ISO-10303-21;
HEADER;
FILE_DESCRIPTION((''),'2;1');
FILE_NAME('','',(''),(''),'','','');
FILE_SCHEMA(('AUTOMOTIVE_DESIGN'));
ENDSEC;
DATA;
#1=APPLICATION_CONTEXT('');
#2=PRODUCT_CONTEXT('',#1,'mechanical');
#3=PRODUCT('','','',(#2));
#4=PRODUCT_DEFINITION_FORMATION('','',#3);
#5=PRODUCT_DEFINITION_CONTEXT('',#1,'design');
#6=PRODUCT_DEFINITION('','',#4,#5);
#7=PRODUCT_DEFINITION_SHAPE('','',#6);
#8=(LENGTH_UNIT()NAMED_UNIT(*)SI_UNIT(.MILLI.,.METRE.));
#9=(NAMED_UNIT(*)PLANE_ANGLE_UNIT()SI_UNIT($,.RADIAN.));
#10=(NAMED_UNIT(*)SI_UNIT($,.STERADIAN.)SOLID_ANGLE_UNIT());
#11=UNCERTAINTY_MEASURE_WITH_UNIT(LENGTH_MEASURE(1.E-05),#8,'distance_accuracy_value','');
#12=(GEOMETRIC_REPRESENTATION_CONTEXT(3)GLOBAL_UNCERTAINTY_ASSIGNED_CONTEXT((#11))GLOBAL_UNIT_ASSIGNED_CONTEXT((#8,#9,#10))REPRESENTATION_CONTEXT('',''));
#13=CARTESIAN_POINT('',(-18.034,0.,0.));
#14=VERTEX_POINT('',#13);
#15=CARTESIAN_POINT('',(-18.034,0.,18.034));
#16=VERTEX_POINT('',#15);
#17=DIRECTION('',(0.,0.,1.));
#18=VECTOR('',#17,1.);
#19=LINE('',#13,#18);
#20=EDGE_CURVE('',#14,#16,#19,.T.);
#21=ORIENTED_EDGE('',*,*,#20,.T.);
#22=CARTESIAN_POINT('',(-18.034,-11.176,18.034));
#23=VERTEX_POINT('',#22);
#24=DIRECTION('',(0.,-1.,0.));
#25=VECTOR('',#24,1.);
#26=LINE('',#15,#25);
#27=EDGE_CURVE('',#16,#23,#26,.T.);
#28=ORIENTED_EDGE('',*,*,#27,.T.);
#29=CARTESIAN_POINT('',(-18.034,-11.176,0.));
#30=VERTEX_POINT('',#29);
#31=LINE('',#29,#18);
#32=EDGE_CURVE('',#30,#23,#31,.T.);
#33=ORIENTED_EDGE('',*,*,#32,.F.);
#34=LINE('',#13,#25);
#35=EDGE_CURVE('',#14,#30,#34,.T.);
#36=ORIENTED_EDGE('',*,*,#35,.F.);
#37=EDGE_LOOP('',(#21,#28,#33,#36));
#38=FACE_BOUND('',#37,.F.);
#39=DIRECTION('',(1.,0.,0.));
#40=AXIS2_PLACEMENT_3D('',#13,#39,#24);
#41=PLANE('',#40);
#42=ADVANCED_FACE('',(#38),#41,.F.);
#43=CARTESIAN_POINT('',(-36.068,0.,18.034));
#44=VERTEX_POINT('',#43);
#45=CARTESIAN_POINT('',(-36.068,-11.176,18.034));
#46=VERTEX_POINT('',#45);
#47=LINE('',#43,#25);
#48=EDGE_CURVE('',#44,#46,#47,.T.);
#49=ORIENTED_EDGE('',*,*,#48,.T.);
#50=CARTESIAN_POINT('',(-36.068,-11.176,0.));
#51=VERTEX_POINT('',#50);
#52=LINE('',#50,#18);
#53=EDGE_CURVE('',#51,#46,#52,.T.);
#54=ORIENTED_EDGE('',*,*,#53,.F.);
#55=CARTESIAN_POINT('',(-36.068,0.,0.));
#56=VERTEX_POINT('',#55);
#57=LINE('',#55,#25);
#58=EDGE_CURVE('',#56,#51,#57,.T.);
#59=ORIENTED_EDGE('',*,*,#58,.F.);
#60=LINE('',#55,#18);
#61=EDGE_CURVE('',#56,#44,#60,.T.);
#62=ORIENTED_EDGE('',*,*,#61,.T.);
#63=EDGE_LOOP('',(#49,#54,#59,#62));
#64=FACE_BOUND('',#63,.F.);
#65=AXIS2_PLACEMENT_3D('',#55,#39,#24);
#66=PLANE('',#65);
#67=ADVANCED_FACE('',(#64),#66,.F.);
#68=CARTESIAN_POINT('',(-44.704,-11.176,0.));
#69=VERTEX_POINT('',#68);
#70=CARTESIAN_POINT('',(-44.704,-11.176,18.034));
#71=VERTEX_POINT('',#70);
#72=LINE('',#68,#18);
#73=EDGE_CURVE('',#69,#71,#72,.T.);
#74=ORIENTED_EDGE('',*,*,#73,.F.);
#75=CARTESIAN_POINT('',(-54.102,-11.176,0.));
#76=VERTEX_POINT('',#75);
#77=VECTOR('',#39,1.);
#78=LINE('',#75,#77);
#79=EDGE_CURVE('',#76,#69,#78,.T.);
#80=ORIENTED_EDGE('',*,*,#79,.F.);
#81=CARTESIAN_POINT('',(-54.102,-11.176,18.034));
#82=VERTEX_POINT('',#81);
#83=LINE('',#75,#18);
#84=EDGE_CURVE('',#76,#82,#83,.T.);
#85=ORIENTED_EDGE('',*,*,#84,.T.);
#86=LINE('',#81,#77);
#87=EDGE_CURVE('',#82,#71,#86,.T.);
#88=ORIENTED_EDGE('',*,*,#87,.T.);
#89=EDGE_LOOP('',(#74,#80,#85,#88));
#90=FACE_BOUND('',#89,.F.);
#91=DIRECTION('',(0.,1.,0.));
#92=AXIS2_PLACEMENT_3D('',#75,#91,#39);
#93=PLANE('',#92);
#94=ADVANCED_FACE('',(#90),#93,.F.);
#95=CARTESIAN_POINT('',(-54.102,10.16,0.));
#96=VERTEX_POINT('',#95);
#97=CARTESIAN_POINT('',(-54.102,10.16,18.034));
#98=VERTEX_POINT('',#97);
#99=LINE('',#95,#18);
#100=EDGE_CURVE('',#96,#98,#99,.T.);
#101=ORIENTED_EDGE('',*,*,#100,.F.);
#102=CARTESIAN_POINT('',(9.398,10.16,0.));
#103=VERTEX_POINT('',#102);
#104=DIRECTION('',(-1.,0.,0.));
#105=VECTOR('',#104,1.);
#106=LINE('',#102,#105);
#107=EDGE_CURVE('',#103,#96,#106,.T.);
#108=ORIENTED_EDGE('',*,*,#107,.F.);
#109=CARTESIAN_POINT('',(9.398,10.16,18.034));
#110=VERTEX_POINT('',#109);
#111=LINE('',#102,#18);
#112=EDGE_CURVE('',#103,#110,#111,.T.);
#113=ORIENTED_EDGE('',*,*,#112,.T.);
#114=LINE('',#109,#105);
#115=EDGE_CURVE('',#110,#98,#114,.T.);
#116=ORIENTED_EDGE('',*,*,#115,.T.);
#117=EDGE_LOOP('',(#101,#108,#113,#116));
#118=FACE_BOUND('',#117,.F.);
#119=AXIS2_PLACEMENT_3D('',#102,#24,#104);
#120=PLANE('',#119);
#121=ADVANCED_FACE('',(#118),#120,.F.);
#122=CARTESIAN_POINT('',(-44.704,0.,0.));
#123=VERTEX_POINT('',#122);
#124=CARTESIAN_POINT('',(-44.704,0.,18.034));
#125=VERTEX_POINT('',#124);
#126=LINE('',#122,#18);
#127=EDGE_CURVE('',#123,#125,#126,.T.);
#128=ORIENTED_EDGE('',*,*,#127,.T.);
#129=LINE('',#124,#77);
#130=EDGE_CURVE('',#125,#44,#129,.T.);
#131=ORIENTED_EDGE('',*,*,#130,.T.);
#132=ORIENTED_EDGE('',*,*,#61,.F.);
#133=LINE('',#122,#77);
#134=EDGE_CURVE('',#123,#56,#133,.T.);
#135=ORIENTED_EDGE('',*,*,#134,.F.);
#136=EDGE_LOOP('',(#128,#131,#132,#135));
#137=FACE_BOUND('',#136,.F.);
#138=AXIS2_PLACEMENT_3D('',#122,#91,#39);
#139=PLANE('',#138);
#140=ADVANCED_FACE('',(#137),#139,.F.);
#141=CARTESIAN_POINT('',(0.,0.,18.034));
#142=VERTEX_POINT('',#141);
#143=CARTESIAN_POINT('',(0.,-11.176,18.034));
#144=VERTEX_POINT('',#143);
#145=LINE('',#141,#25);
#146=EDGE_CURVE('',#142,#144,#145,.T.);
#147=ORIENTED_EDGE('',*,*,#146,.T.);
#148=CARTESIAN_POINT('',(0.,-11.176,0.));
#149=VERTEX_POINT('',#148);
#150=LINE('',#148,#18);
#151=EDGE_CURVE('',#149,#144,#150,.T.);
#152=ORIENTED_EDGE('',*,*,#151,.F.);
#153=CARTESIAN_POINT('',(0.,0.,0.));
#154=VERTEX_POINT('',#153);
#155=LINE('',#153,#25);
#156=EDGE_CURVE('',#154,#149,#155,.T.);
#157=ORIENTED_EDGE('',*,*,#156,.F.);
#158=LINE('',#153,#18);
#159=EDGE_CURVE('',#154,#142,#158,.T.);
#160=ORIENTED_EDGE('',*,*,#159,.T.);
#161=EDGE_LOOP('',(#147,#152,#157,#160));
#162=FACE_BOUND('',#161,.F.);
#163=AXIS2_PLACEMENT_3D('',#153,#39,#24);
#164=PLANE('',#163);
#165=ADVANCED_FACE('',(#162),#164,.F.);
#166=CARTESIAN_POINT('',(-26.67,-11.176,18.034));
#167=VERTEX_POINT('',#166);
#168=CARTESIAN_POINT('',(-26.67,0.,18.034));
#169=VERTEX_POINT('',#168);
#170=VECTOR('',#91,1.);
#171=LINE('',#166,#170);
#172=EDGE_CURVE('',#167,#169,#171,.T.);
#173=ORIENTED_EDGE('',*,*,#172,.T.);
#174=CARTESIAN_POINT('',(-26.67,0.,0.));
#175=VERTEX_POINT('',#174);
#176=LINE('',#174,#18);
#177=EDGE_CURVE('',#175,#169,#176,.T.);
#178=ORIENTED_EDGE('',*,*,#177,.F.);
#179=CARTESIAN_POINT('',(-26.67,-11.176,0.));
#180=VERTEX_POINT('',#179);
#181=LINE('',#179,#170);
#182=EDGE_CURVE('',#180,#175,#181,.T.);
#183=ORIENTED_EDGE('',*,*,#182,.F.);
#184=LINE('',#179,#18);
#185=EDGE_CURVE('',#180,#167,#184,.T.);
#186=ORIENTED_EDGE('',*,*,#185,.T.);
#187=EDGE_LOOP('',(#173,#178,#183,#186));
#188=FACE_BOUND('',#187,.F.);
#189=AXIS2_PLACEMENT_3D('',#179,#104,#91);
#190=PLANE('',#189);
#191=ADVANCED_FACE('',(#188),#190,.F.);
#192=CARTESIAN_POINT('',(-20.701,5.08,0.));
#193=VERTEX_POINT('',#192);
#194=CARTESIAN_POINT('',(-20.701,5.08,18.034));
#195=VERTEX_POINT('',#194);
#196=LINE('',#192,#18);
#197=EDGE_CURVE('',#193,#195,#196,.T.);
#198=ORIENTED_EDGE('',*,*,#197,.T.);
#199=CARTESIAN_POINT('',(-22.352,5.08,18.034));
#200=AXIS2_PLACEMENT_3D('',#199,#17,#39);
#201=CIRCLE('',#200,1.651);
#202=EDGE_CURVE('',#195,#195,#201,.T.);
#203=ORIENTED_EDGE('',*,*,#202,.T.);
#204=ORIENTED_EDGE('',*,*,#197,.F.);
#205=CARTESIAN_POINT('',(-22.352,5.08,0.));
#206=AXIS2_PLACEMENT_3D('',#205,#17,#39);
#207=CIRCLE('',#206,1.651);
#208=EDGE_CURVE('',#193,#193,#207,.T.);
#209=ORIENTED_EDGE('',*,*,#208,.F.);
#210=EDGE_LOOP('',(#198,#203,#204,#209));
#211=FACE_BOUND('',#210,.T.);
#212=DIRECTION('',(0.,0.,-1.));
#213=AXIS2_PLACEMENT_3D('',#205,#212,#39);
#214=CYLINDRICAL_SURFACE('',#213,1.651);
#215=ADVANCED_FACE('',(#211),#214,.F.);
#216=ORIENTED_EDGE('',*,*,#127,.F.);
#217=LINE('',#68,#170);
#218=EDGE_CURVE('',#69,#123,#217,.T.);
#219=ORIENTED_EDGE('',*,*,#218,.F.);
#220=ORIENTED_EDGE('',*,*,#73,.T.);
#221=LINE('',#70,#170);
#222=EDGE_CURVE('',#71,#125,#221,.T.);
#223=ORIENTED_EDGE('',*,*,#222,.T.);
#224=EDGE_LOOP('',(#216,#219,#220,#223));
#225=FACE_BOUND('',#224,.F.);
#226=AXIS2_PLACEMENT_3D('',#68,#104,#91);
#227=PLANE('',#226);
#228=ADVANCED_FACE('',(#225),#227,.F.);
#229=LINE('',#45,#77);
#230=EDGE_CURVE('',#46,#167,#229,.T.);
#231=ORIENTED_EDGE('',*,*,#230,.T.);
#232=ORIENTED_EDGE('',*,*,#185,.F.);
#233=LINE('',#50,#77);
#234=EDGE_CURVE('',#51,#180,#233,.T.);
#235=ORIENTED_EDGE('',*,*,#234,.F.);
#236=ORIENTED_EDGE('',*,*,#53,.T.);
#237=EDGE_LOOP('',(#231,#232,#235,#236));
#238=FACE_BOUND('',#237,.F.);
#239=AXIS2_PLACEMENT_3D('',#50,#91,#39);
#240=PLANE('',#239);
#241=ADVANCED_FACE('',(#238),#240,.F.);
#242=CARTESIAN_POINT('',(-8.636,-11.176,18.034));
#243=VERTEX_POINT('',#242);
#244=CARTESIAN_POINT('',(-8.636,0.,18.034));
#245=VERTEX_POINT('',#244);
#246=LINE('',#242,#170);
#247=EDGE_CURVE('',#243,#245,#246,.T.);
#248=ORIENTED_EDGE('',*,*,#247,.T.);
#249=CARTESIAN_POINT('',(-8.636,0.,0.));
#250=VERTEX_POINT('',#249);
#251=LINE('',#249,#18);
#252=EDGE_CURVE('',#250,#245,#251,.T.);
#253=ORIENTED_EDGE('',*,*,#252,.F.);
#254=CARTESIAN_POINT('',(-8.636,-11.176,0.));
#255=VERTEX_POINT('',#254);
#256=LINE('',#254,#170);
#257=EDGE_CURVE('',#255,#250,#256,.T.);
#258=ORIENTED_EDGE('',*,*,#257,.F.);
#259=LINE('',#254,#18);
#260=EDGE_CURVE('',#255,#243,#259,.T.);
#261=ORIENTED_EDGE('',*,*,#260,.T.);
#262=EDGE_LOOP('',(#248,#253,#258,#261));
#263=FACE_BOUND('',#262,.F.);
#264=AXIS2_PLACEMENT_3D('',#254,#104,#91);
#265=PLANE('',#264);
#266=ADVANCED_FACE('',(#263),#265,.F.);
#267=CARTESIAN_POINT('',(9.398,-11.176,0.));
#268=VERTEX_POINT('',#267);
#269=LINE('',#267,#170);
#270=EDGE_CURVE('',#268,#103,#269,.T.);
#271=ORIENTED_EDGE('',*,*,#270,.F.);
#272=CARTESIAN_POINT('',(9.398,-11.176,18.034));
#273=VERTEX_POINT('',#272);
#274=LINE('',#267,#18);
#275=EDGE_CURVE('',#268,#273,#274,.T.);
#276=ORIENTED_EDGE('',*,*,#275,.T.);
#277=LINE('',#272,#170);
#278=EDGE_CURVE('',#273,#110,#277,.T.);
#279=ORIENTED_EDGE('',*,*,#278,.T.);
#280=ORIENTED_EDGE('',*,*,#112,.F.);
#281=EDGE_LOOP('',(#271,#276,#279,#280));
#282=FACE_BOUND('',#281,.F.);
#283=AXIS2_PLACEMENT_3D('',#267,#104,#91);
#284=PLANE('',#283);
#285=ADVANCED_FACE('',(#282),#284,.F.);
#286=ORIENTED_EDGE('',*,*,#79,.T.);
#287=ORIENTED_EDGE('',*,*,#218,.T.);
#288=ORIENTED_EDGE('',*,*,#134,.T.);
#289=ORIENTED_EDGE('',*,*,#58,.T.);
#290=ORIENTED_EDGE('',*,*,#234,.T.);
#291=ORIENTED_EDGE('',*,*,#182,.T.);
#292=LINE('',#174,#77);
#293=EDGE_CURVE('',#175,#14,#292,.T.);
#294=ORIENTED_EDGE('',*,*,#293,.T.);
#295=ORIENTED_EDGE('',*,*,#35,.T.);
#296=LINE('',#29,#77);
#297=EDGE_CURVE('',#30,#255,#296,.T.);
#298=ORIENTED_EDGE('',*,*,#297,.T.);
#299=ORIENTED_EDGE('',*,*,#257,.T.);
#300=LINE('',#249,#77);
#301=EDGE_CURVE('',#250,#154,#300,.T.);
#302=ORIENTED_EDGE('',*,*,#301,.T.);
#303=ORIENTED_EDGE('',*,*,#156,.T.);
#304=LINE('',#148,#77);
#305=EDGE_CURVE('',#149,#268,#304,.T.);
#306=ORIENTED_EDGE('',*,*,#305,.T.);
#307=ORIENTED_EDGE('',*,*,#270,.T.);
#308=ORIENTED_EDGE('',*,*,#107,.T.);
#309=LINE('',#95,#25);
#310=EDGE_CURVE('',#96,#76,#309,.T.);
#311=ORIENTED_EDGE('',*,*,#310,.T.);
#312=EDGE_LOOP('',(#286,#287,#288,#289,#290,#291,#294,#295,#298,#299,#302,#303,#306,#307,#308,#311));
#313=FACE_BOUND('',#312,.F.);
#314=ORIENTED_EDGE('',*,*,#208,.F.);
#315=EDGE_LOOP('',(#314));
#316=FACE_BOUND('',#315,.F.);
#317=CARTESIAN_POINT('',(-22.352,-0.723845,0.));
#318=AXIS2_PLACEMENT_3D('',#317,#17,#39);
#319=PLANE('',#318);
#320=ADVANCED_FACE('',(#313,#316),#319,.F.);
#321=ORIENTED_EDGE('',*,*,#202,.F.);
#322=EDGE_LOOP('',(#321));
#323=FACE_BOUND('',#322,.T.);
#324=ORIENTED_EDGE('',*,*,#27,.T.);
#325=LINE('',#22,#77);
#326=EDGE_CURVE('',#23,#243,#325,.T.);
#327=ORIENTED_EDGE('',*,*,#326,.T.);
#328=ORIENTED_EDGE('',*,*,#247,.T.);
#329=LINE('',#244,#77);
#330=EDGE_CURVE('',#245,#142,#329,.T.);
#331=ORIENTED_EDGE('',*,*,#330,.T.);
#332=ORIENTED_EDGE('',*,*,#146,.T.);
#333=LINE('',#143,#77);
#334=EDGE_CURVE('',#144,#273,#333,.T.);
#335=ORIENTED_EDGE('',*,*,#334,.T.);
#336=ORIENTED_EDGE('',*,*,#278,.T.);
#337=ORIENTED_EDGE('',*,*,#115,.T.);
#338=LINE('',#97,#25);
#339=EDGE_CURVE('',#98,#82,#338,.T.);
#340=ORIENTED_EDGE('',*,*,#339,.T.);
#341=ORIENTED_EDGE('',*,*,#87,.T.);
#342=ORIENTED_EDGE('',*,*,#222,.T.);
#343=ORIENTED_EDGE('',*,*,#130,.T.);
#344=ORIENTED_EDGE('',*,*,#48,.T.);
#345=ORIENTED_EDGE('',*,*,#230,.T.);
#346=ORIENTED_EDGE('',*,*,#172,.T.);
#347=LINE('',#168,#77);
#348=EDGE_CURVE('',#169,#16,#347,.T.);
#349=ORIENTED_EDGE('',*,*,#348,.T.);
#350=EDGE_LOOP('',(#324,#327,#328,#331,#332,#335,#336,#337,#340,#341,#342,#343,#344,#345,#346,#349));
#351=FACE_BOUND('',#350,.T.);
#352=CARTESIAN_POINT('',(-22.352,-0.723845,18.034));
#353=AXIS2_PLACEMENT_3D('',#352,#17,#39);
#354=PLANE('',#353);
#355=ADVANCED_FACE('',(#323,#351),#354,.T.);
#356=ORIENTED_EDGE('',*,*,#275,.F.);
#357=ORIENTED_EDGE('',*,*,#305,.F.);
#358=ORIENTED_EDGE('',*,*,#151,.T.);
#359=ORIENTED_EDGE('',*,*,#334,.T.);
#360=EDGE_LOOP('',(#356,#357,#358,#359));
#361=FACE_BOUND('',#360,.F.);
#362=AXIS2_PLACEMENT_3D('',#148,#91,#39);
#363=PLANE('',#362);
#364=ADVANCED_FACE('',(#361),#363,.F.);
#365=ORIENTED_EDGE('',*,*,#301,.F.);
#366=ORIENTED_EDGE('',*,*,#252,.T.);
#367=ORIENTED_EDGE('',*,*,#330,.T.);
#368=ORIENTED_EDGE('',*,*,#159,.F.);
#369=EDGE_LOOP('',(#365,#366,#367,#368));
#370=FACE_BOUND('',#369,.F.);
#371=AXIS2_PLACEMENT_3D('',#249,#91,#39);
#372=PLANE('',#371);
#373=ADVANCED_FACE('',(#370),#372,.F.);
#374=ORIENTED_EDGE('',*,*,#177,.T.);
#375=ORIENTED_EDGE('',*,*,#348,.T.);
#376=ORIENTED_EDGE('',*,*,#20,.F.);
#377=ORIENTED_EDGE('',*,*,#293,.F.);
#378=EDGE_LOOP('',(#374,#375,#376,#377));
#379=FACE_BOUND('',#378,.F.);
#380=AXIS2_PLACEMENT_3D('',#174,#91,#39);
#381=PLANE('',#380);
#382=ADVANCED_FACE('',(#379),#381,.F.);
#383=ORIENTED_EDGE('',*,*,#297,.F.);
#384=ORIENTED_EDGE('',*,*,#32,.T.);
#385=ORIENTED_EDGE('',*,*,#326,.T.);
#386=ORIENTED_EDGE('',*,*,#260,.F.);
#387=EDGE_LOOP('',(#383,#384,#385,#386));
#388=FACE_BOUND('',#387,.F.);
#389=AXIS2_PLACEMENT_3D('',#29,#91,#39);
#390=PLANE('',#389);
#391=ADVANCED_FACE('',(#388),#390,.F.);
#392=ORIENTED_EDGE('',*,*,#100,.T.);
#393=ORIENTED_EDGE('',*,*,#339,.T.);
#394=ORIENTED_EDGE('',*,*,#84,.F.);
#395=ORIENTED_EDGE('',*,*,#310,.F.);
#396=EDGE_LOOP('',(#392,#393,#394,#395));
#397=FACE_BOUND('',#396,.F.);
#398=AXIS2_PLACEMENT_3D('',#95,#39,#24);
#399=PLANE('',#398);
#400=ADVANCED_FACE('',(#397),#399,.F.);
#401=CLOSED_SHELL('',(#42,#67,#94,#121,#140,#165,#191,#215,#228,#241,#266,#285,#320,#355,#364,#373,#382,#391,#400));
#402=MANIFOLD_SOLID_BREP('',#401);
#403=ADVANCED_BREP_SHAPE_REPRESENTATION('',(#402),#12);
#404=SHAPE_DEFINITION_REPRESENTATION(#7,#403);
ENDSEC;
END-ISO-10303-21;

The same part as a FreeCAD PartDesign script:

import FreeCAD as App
import Part
import Sketcher

V = App.Vector
Q = App.Units.Quantity

doc = App.newDocument("Part")
body = doc.addObject("PartDesign::Body", "Body")

sketch1 = body.newObject("Sketcher::SketchObject", "Sketch")
sketch1.AttachmentSupport = (doc.getObject("XY_Plane"), [""])
sketch1.MapMode = "FlatFace"
sketch1.addGeometry([
    Part.LineSegment(V(-54.1, 10.2, 0), V(-54.1, -11.2, 0)),
    Part.LineSegment(V(-54.1, -11.2, 0), V(-44.7, -11.2, 0)),
    Part.LineSegment(V(-44.7, -11.2, 0), V(-44.7, 0, 0)),
    Part.LineSegment(V(-44.7, 0, 0), V(-36.1, 0, 0)),
    Part.LineSegment(V(-36.1, 0, 0), V(-36.1, -11.2, 0)),
    Part.LineSegment(V(-36.1, -11.2, 0), V(-26.7, -11.2, 0)),
    Part.LineSegment(V(-26.7, -11.2, 0), V(-26.7, 0, 0)),
    Part.LineSegment(V(-26.7, 0, 0), V(-18, 0, 0)),
    Part.LineSegment(V(-18, 0, 0), V(-18, -11.2, 0)),
    Part.LineSegment(V(-18, -11.2, 0), V(-8.6, -11.2, 0)),
    Part.LineSegment(V(-8.6, -11.2, 0), V(-8.6, 0, 0)),
    Part.LineSegment(V(-8.6, 0, 0), V(0, 0, 0)),
    Part.LineSegment(V(0, 0, 0), V(0, -11.2, 0)),
    Part.LineSegment(V(0, -11.2, 0), V(9.4, -11.2, 0)),
    Part.LineSegment(V(9.4, -11.2, 0), V(9.4, 10.2, 0)),
    Part.LineSegment(V(9.4, 10.2, 0), V(-54.1, 10.2, 0)),
    Part.Circle(V(-22.4, 5.1, 0), V(0, 0, 1), 1.7),
], False)
sketch1.addConstraint([
    Sketcher.Constraint("Coincident", 0, 2, 1, 1),
    Sketcher.Constraint("Coincident", 1, 2, 2, 1),
    Sketcher.Constraint("Coincident", 2, 2, 3, 1),
    Sketcher.Constraint("Coincident", 3, 2, 4, 1),
    Sketcher.Constraint("Coincident", 4, 2, 5, 1),
    Sketcher.Constraint("Coincident", 5, 2, 6, 1),
    Sketcher.Constraint("Coincident", 6, 2, 7, 1),
    Sketcher.Constraint("Coincident", 7, 2, 8, 1),
    Sketcher.Constraint("Coincident", 8, 2, 9, 1),
    Sketcher.Constraint("Coincident", 9, 2, 10, 1),
    Sketcher.Constraint("Coincident", 10, 2, 11, 1),
    Sketcher.Constraint("Coincident", 11, 2, 12, 1),
    Sketcher.Constraint("Coincident", 12, 2, 13, 1),
    Sketcher.Constraint("Coincident", 13, 2, 14, 1),
    Sketcher.Constraint("Coincident", 14, 2, 15, 1),
    Sketcher.Constraint("Coincident", 15, 2, 0, 1),
    Sketcher.Constraint("Vertical", 0),
    Sketcher.Constraint("Horizontal", 1),
    Sketcher.Constraint("Vertical", 2),
    Sketcher.Constraint("Horizontal", 3),
    Sketcher.Constraint("Vertical", 4),
    Sketcher.Constraint("Horizontal", 5),
    Sketcher.Constraint("Vertical", 6),
    Sketcher.Constraint("Horizontal", 7),
    Sketcher.Constraint("Vertical", 8),
    Sketcher.Constraint("Horizontal", 9),
    Sketcher.Constraint("Vertical", 10),
    Sketcher.Constraint("Horizontal", 11),
    Sketcher.Constraint("Vertical", 12),
    Sketcher.Constraint("Horizontal", 13),
    Sketcher.Constraint("Vertical", 14),
    Sketcher.Constraint("Horizontal", 15),
    Sketcher.Constraint("Coincident", 11, 2, -1, 1),
    Sketcher.Constraint("PointOnObject", 2, 2, -1),
    Sketcher.Constraint("PointOnObject", 6, 2, -1),
    Sketcher.Constraint("Horizontal", 1, 2, 4, 2),
    Sketcher.Constraint("Horizontal", 5, 2, 8, 2),
    Sketcher.Constraint("Horizontal", 9, 2, 12, 2),
    Sketcher.Constraint("Equal", 1, 5),
    Sketcher.Constraint("Equal", 3, 7),
    Sketcher.Constraint("Equal", 5, 9),
    Sketcher.Constraint("Equal", 7, 11),
    Sketcher.Constraint("Equal", 9, 13),
    Sketcher.Constraint("Diameter", 16, Q("0.13 in")),
    Sketcher.Constraint("DistanceX", 15, 2, 15, 1, Q("2.5 in")),
    Sketcher.Constraint("DistanceX", 1, 1, 1, 2, Q("0.37 in")),
    Sketcher.Constraint("DistanceY", 0, 2, 0, 1, Q("0.84 in")),
    Sketcher.Constraint("DistanceY", 2, 1, 2, 2, Q("0.44 in")),
    Sketcher.Constraint("DistanceY", -1, 1, 16, 3, Q("0.2 in")),
    Sketcher.Constraint("DistanceX", 16, 3, -1, 1, Q("0.88 in")),
])
pad1 = body.newObject("PartDesign::Pad", "Pad")
pad1.Profile = sketch1
pad1.Length = Q("0.71 in")

doc.recompute()
